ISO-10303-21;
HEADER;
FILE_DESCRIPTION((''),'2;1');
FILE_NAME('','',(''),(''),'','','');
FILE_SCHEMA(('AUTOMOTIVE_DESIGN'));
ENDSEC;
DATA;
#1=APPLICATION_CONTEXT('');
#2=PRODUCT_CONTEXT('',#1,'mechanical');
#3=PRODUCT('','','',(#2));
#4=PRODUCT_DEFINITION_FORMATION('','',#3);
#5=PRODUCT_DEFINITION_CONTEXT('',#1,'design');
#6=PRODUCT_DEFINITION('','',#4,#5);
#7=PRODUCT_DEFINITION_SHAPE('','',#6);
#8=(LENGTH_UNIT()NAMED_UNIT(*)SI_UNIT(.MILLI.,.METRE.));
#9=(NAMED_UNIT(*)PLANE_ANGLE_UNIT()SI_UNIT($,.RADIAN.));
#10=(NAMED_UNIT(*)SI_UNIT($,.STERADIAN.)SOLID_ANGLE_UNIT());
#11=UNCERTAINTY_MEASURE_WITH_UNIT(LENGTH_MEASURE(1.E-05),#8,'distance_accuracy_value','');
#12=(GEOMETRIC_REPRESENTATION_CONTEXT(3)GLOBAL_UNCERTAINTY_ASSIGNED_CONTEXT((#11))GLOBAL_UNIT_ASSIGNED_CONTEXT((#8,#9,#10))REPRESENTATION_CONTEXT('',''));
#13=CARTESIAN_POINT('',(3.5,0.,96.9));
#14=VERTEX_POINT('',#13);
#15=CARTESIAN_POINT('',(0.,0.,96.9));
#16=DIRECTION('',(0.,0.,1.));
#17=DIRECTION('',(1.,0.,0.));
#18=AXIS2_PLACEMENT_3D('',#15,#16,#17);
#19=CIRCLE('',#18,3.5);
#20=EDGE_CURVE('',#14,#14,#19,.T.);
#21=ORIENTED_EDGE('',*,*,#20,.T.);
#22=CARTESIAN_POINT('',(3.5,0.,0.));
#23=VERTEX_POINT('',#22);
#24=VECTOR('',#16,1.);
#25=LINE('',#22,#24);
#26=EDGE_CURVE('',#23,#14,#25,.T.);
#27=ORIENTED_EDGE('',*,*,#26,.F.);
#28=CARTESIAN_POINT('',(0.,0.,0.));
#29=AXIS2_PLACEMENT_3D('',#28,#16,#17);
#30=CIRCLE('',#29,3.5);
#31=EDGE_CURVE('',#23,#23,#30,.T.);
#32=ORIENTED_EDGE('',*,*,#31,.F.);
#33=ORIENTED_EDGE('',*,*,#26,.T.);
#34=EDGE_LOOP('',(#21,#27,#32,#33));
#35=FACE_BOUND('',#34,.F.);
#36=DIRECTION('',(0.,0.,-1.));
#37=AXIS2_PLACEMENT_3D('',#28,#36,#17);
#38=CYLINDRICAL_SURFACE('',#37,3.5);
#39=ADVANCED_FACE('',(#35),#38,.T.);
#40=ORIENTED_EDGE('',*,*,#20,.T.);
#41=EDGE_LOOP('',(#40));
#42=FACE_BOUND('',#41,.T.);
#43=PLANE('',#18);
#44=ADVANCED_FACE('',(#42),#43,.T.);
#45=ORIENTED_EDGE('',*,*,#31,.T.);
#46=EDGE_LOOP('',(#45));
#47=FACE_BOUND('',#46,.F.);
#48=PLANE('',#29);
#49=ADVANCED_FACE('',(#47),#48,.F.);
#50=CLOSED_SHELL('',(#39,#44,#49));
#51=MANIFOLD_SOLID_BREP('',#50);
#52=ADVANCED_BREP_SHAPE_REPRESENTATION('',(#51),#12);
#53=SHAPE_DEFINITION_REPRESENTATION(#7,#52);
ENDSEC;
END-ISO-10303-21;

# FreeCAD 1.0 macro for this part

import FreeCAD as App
import Part
import Sketcher
from FreeCAD import Vector

doc = App.newDocument("Part")
body = doc.addObject("PartDesign::Body", "Body")

sketch1 = body.newObject("Sketcher::SketchObject", "Sketch")
sketch1.AttachmentSupport = (doc.getObject("XY_Plane"), [""])
sketch1.MapMode = "FlatFace"
sketch1.addGeometry(Part.Circle(Vector(0, 0, 0), Vector(0, 0, 1), 3.5), False)
sketch1.addConstraint([
    Sketcher.Constraint("Coincident", 0, 3, -1, 1),
    Sketcher.Constraint("Diameter", 0, 7.0),
])
pad1 = body.newObject("PartDesign::Pad", "Pad")
pad1.Profile = sketch1
pad1.Length = 96.9

doc.recompute()
